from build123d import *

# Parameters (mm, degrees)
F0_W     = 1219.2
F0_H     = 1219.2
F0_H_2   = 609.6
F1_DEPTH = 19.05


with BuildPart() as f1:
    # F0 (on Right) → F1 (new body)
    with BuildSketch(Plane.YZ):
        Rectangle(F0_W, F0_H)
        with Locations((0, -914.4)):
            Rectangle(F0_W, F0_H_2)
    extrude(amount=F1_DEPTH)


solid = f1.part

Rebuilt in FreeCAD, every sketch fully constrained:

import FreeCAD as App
import Part
import Sketcher
from FreeCAD import Vector
Q = App.Units.Quantity

doc = App.newDocument("Part")
body = doc.addObject("PartDesign::Body", "Body")

# Sketch on YZ plane
sketch1 = doc.addObject("Sketcher::SketchObject", "Sketch")
body.addObject(sketch1)
sketch1.AttachmentSupport = (doc.YZ_Plane, [""])
sketch1.MapMode = "FlatFace"
sketch1.addGeometry(Part.LineSegment(Vector(-609.6, 609.6, 0), Vector(-609.6, -1219.2, 0)), False)
sketch1.addGeometry(Part.LineSegment(Vector(-609.6, -1219.2, 0), Vector(609.6, -1219.2, 0)), False)
sketch1.addGeometry(Part.LineSegment(Vector(609.6, -1219.2, 0), Vector(609.6, 609.6, 0)), False)
sketch1.addGeometry(Part.LineSegment(Vector(609.6, 609.6, 0), Vector(-609.6, 609.6, 0)), False)
sketch1.addConstraint(Sketcher.Constraint("Coincident", 0, 2, 1, 1))
sketch1.addConstraint(Sketcher.Constraint("Coincident", 1, 2, 2, 1))
sketch1.addConstraint(Sketcher.Constraint("Coincident", 2, 2, 3, 1))
sketch1.addConstraint(Sketcher.Constraint("Coincident", 3, 2, 0, 1))
sketch1.addConstraint(Sketcher.Constraint("Vertical", 0))
sketch1.addConstraint(Sketcher.Constraint("Horizontal", 1))
sketch1.addConstraint(Sketcher.Constraint("Vertical", 2))
sketch1.addConstraint(Sketcher.Constraint("Horizontal", 3))
sketch1.addConstraint(Sketcher.Constraint("DistanceX", 1, 1, 1, 2, Q("48 in")))
sketch1.addConstraint(Sketcher.Constraint("DistanceY", 0, 2, 0, 1, Q("72 in")))
sketch1.addConstraint(Sketcher.Constraint("DistanceX", 0, 2, -1, 1, Q("24 in")))
sketch1.addConstraint(Sketcher.Constraint("DistanceY", 0, 2, -1, 1, Q("48 in")))
pad1 = doc.addObject("PartDesign::Pad", "Pad")
body.addObject(pad1)
pad1.Profile = sketch1
pad1.Length = Q("0.75 in")

doc.recompute()
